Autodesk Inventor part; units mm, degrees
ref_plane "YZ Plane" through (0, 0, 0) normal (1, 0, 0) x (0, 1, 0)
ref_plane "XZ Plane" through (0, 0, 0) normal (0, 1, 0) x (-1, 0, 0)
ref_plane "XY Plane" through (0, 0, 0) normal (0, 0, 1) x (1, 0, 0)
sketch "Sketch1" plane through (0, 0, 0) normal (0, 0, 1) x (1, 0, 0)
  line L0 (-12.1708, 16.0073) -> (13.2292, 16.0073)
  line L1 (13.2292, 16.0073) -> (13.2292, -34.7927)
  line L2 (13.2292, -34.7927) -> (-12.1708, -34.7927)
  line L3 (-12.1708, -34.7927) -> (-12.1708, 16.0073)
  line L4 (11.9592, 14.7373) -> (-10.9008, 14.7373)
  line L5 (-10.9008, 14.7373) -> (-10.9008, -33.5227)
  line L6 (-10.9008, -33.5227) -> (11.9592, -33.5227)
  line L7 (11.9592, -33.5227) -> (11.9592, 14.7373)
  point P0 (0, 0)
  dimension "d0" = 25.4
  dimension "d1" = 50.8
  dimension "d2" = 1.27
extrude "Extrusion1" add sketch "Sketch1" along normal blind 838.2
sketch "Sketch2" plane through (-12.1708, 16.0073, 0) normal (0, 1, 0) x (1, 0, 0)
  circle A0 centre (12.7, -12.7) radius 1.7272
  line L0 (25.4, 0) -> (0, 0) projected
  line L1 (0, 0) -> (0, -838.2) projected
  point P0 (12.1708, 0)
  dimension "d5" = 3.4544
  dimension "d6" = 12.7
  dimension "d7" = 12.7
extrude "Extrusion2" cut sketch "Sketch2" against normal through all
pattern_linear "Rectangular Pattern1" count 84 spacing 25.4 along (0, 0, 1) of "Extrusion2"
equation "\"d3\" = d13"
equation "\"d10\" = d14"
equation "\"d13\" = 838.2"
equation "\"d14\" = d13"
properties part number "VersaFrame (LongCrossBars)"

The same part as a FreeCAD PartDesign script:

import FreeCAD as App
import Part
import Sketcher

V = App.Vector
Q = App.Units.Quantity


def add_polygon(sketch, points):
    """Adds a closed chain of lines whose ends are joined by coincident constraints."""
    first, n = sketch.GeometryCount, len(points)
    for a, b in zip(points, points[1:] + points[:1]):
        sketch.addGeometry(Part.LineSegment(App.Vector(*a, 0), App.Vector(*b, 0)), False)
    for i in range(n):
        sketch.addConstraint(Sketcher.Constraint("Coincident", first + i, 2, first + (i + 1) % n, 1))

doc = App.newDocument("Part")
body = doc.addObject("PartDesign::Body", "Body")

sketch1 = body.newObject("Sketcher::SketchObject", "Sketch")
sketch1.AttachmentSupport = (doc.getObject("XY_Plane"), [""])
sketch1.MapMode = "FlatFace"
add_polygon(sketch1, [(13, 16), (-12, 16), (-12, -35), (13, -35)])
add_polygon(sketch1, [(-11, 15), (12, 15), (12, -34), (-11, -34)])
sketch1.addConstraint(Sketcher.Constraint("Horizontal", 0))
sketch1.addConstraint(Sketcher.Constraint("Vertical", 1))
sketch1.addConstraint(Sketcher.Constraint("Horizontal", 2))
sketch1.addConstraint(Sketcher.Constraint("Vertical", 3))
sketch1.addConstraint(Sketcher.Constraint("Horizontal", 4))
sketch1.addConstraint(Sketcher.Constraint("Vertical", 5))
sketch1.addConstraint(Sketcher.Constraint("Horizontal", 6))
sketch1.addConstraint(Sketcher.Constraint("Vertical", 7))
sketch1.addConstraint(Sketcher.Constraint("DistanceX", 0, 2, 0, 1, Q("1 in")))
sketch1.addConstraint(Sketcher.Constraint("DistanceY", 1, 2, 1, 1, Q("2 in")))
sketch1.addConstraint(Sketcher.Constraint("DistanceX", 4, 2, 3, 2, Q("0.05 in")))
sketch1.addConstraint(Sketcher.Constraint("DistanceY", 4, 2, 3, 2, Q("0.05 in")))
sketch1.addConstraint(Sketcher.Constraint("DistanceY", 2, 2, 5, 2, Q("0.05 in")))
sketch1.addConstraint(Sketcher.Constraint("DistanceX", 1, 2, 6, 2, Q("0.05 in")))
sketch1.addConstraint(Sketcher.Constraint("DistanceY", -1, 1, 0, 2, Q("0.6302 in")))
sketch1.addConstraint(Sketcher.Constraint("DistanceX", 0, 2, -1, 1, 12.1708))
pad1 = body.newObject("PartDesign::Pad", "Pad")
pad1.Profile = sketch1
pad1.Length = Q("33 in")

sketch2 = body.newObject("Sketcher::SketchObject", "Sketch001")
sketch2.AttachmentSupport = (doc.getObject("XZ_Plane"), [""])
sketch2.MapMode = "FlatFace"
sketch2.AttachmentOffset = App.Placement(V(0, 0, -0.6302087 * 25.4), App.Rotation())
sketch2.addGeometry(Part.Circle(V(0.5, 12.7, 0), V(0, 0, 1), 1.7), False)
sketch2.addConstraint(Sketcher.Constraint("Diameter", 0, Q("0.136 in")))
sketch2.addConstraint(Sketcher.Constraint("DistanceY", -1, 1, 0, 3, Q("0.5 in")))
sketch2.addConstraint(Sketcher.Constraint("DistanceX", -1, 1, 0, 3, 0.5292))
pocket1 = body.newObject("PartDesign::Pocket", "Pocket")
pocket1.Profile = sketch2
pocket1.Type = "ThroughAll"
pocket1.Reversed = True
doc.recompute()

linearpattern = body.newObject("PartDesign::LinearPattern", "LinearPattern")
linearpattern.Originals = [pocket1]
linearpattern.Direction = (doc.getObject("Z_Axis"), [""])
linearpattern.Mode = "offset"
linearpattern.Offset = Q("1 in")
linearpattern.Occurrences = 84
body.Tip = linearpattern

doc.recompute()
